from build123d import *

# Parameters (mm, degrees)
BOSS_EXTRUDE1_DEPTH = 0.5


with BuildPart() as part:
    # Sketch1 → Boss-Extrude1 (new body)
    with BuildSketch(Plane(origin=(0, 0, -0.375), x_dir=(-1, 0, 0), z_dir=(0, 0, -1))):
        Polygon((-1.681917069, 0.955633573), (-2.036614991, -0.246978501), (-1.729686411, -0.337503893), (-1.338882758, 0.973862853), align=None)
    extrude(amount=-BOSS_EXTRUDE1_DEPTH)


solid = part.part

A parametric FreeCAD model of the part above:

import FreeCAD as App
import Part
import Sketcher
Q = App.Units.Quantity


def add_polygon(sketch, points):
    """Adds a closed chain of lines whose ends are joined by coincident constraints."""
    first, n = sketch.GeometryCount, len(points)
    for a, b in zip(points, points[1:] + points[:1]):
        sketch.addGeometry(Part.LineSegment(App.Vector(*a, 0), App.Vector(*b, 0)), False)
    for i in range(n):
        sketch.addConstraint(Sketcher.Constraint("Coincident", first + i, 2, first + (i + 1) % n, 1))

doc = App.newDocument("Part")
body = doc.addObject("PartDesign::Body", "Body")

# Sketch on XY plane
sketch1 = body.newObject("Sketcher::SketchObject", "Sketch")
sketch1.AttachmentSupport = (doc.getObject("XY_Plane"), [""])
sketch1.MapMode = "FlatFace"
sketch1.AttachmentOffset = App.Placement(App.Vector(0, 0, -0.375), App.Rotation())
add_polygon(sketch1, [(1.681917, 0.955634), (2.036615, -0.246979), (1.729686, -0.337504), (1.338883, 0.973863)])  # lines 0-3
sketch1.addConstraint([
    Sketcher.Constraint("Perpendicular", 0, 1),
    Sketcher.Constraint("Distance", 1, Q("0.32 mm")),
    Sketcher.Constraint("Distance", 0, Q("1.253829 mm")),
    Sketcher.Constraint("Distance", 2, Q("1.36836 mm")),
    Sketcher.Constraint("Distance", 3, Q("0.343518 mm")),
    Sketcher.Constraint("DistanceY", 0, 2, -1, 1, Q("0.246979 mm")),
    Sketcher.Constraint("DistanceX", 1, 2, 0, 2, Q("0.306929 mm")),
    Sketcher.Constraint("DistanceX", -1, 1, 0, 2, Q("2.036615 mm")),
])
pad1 = body.newObject("PartDesign::Pad", "Pad")
pad1.Profile = sketch1
pad1.Length = 0.5

doc.recompute()
